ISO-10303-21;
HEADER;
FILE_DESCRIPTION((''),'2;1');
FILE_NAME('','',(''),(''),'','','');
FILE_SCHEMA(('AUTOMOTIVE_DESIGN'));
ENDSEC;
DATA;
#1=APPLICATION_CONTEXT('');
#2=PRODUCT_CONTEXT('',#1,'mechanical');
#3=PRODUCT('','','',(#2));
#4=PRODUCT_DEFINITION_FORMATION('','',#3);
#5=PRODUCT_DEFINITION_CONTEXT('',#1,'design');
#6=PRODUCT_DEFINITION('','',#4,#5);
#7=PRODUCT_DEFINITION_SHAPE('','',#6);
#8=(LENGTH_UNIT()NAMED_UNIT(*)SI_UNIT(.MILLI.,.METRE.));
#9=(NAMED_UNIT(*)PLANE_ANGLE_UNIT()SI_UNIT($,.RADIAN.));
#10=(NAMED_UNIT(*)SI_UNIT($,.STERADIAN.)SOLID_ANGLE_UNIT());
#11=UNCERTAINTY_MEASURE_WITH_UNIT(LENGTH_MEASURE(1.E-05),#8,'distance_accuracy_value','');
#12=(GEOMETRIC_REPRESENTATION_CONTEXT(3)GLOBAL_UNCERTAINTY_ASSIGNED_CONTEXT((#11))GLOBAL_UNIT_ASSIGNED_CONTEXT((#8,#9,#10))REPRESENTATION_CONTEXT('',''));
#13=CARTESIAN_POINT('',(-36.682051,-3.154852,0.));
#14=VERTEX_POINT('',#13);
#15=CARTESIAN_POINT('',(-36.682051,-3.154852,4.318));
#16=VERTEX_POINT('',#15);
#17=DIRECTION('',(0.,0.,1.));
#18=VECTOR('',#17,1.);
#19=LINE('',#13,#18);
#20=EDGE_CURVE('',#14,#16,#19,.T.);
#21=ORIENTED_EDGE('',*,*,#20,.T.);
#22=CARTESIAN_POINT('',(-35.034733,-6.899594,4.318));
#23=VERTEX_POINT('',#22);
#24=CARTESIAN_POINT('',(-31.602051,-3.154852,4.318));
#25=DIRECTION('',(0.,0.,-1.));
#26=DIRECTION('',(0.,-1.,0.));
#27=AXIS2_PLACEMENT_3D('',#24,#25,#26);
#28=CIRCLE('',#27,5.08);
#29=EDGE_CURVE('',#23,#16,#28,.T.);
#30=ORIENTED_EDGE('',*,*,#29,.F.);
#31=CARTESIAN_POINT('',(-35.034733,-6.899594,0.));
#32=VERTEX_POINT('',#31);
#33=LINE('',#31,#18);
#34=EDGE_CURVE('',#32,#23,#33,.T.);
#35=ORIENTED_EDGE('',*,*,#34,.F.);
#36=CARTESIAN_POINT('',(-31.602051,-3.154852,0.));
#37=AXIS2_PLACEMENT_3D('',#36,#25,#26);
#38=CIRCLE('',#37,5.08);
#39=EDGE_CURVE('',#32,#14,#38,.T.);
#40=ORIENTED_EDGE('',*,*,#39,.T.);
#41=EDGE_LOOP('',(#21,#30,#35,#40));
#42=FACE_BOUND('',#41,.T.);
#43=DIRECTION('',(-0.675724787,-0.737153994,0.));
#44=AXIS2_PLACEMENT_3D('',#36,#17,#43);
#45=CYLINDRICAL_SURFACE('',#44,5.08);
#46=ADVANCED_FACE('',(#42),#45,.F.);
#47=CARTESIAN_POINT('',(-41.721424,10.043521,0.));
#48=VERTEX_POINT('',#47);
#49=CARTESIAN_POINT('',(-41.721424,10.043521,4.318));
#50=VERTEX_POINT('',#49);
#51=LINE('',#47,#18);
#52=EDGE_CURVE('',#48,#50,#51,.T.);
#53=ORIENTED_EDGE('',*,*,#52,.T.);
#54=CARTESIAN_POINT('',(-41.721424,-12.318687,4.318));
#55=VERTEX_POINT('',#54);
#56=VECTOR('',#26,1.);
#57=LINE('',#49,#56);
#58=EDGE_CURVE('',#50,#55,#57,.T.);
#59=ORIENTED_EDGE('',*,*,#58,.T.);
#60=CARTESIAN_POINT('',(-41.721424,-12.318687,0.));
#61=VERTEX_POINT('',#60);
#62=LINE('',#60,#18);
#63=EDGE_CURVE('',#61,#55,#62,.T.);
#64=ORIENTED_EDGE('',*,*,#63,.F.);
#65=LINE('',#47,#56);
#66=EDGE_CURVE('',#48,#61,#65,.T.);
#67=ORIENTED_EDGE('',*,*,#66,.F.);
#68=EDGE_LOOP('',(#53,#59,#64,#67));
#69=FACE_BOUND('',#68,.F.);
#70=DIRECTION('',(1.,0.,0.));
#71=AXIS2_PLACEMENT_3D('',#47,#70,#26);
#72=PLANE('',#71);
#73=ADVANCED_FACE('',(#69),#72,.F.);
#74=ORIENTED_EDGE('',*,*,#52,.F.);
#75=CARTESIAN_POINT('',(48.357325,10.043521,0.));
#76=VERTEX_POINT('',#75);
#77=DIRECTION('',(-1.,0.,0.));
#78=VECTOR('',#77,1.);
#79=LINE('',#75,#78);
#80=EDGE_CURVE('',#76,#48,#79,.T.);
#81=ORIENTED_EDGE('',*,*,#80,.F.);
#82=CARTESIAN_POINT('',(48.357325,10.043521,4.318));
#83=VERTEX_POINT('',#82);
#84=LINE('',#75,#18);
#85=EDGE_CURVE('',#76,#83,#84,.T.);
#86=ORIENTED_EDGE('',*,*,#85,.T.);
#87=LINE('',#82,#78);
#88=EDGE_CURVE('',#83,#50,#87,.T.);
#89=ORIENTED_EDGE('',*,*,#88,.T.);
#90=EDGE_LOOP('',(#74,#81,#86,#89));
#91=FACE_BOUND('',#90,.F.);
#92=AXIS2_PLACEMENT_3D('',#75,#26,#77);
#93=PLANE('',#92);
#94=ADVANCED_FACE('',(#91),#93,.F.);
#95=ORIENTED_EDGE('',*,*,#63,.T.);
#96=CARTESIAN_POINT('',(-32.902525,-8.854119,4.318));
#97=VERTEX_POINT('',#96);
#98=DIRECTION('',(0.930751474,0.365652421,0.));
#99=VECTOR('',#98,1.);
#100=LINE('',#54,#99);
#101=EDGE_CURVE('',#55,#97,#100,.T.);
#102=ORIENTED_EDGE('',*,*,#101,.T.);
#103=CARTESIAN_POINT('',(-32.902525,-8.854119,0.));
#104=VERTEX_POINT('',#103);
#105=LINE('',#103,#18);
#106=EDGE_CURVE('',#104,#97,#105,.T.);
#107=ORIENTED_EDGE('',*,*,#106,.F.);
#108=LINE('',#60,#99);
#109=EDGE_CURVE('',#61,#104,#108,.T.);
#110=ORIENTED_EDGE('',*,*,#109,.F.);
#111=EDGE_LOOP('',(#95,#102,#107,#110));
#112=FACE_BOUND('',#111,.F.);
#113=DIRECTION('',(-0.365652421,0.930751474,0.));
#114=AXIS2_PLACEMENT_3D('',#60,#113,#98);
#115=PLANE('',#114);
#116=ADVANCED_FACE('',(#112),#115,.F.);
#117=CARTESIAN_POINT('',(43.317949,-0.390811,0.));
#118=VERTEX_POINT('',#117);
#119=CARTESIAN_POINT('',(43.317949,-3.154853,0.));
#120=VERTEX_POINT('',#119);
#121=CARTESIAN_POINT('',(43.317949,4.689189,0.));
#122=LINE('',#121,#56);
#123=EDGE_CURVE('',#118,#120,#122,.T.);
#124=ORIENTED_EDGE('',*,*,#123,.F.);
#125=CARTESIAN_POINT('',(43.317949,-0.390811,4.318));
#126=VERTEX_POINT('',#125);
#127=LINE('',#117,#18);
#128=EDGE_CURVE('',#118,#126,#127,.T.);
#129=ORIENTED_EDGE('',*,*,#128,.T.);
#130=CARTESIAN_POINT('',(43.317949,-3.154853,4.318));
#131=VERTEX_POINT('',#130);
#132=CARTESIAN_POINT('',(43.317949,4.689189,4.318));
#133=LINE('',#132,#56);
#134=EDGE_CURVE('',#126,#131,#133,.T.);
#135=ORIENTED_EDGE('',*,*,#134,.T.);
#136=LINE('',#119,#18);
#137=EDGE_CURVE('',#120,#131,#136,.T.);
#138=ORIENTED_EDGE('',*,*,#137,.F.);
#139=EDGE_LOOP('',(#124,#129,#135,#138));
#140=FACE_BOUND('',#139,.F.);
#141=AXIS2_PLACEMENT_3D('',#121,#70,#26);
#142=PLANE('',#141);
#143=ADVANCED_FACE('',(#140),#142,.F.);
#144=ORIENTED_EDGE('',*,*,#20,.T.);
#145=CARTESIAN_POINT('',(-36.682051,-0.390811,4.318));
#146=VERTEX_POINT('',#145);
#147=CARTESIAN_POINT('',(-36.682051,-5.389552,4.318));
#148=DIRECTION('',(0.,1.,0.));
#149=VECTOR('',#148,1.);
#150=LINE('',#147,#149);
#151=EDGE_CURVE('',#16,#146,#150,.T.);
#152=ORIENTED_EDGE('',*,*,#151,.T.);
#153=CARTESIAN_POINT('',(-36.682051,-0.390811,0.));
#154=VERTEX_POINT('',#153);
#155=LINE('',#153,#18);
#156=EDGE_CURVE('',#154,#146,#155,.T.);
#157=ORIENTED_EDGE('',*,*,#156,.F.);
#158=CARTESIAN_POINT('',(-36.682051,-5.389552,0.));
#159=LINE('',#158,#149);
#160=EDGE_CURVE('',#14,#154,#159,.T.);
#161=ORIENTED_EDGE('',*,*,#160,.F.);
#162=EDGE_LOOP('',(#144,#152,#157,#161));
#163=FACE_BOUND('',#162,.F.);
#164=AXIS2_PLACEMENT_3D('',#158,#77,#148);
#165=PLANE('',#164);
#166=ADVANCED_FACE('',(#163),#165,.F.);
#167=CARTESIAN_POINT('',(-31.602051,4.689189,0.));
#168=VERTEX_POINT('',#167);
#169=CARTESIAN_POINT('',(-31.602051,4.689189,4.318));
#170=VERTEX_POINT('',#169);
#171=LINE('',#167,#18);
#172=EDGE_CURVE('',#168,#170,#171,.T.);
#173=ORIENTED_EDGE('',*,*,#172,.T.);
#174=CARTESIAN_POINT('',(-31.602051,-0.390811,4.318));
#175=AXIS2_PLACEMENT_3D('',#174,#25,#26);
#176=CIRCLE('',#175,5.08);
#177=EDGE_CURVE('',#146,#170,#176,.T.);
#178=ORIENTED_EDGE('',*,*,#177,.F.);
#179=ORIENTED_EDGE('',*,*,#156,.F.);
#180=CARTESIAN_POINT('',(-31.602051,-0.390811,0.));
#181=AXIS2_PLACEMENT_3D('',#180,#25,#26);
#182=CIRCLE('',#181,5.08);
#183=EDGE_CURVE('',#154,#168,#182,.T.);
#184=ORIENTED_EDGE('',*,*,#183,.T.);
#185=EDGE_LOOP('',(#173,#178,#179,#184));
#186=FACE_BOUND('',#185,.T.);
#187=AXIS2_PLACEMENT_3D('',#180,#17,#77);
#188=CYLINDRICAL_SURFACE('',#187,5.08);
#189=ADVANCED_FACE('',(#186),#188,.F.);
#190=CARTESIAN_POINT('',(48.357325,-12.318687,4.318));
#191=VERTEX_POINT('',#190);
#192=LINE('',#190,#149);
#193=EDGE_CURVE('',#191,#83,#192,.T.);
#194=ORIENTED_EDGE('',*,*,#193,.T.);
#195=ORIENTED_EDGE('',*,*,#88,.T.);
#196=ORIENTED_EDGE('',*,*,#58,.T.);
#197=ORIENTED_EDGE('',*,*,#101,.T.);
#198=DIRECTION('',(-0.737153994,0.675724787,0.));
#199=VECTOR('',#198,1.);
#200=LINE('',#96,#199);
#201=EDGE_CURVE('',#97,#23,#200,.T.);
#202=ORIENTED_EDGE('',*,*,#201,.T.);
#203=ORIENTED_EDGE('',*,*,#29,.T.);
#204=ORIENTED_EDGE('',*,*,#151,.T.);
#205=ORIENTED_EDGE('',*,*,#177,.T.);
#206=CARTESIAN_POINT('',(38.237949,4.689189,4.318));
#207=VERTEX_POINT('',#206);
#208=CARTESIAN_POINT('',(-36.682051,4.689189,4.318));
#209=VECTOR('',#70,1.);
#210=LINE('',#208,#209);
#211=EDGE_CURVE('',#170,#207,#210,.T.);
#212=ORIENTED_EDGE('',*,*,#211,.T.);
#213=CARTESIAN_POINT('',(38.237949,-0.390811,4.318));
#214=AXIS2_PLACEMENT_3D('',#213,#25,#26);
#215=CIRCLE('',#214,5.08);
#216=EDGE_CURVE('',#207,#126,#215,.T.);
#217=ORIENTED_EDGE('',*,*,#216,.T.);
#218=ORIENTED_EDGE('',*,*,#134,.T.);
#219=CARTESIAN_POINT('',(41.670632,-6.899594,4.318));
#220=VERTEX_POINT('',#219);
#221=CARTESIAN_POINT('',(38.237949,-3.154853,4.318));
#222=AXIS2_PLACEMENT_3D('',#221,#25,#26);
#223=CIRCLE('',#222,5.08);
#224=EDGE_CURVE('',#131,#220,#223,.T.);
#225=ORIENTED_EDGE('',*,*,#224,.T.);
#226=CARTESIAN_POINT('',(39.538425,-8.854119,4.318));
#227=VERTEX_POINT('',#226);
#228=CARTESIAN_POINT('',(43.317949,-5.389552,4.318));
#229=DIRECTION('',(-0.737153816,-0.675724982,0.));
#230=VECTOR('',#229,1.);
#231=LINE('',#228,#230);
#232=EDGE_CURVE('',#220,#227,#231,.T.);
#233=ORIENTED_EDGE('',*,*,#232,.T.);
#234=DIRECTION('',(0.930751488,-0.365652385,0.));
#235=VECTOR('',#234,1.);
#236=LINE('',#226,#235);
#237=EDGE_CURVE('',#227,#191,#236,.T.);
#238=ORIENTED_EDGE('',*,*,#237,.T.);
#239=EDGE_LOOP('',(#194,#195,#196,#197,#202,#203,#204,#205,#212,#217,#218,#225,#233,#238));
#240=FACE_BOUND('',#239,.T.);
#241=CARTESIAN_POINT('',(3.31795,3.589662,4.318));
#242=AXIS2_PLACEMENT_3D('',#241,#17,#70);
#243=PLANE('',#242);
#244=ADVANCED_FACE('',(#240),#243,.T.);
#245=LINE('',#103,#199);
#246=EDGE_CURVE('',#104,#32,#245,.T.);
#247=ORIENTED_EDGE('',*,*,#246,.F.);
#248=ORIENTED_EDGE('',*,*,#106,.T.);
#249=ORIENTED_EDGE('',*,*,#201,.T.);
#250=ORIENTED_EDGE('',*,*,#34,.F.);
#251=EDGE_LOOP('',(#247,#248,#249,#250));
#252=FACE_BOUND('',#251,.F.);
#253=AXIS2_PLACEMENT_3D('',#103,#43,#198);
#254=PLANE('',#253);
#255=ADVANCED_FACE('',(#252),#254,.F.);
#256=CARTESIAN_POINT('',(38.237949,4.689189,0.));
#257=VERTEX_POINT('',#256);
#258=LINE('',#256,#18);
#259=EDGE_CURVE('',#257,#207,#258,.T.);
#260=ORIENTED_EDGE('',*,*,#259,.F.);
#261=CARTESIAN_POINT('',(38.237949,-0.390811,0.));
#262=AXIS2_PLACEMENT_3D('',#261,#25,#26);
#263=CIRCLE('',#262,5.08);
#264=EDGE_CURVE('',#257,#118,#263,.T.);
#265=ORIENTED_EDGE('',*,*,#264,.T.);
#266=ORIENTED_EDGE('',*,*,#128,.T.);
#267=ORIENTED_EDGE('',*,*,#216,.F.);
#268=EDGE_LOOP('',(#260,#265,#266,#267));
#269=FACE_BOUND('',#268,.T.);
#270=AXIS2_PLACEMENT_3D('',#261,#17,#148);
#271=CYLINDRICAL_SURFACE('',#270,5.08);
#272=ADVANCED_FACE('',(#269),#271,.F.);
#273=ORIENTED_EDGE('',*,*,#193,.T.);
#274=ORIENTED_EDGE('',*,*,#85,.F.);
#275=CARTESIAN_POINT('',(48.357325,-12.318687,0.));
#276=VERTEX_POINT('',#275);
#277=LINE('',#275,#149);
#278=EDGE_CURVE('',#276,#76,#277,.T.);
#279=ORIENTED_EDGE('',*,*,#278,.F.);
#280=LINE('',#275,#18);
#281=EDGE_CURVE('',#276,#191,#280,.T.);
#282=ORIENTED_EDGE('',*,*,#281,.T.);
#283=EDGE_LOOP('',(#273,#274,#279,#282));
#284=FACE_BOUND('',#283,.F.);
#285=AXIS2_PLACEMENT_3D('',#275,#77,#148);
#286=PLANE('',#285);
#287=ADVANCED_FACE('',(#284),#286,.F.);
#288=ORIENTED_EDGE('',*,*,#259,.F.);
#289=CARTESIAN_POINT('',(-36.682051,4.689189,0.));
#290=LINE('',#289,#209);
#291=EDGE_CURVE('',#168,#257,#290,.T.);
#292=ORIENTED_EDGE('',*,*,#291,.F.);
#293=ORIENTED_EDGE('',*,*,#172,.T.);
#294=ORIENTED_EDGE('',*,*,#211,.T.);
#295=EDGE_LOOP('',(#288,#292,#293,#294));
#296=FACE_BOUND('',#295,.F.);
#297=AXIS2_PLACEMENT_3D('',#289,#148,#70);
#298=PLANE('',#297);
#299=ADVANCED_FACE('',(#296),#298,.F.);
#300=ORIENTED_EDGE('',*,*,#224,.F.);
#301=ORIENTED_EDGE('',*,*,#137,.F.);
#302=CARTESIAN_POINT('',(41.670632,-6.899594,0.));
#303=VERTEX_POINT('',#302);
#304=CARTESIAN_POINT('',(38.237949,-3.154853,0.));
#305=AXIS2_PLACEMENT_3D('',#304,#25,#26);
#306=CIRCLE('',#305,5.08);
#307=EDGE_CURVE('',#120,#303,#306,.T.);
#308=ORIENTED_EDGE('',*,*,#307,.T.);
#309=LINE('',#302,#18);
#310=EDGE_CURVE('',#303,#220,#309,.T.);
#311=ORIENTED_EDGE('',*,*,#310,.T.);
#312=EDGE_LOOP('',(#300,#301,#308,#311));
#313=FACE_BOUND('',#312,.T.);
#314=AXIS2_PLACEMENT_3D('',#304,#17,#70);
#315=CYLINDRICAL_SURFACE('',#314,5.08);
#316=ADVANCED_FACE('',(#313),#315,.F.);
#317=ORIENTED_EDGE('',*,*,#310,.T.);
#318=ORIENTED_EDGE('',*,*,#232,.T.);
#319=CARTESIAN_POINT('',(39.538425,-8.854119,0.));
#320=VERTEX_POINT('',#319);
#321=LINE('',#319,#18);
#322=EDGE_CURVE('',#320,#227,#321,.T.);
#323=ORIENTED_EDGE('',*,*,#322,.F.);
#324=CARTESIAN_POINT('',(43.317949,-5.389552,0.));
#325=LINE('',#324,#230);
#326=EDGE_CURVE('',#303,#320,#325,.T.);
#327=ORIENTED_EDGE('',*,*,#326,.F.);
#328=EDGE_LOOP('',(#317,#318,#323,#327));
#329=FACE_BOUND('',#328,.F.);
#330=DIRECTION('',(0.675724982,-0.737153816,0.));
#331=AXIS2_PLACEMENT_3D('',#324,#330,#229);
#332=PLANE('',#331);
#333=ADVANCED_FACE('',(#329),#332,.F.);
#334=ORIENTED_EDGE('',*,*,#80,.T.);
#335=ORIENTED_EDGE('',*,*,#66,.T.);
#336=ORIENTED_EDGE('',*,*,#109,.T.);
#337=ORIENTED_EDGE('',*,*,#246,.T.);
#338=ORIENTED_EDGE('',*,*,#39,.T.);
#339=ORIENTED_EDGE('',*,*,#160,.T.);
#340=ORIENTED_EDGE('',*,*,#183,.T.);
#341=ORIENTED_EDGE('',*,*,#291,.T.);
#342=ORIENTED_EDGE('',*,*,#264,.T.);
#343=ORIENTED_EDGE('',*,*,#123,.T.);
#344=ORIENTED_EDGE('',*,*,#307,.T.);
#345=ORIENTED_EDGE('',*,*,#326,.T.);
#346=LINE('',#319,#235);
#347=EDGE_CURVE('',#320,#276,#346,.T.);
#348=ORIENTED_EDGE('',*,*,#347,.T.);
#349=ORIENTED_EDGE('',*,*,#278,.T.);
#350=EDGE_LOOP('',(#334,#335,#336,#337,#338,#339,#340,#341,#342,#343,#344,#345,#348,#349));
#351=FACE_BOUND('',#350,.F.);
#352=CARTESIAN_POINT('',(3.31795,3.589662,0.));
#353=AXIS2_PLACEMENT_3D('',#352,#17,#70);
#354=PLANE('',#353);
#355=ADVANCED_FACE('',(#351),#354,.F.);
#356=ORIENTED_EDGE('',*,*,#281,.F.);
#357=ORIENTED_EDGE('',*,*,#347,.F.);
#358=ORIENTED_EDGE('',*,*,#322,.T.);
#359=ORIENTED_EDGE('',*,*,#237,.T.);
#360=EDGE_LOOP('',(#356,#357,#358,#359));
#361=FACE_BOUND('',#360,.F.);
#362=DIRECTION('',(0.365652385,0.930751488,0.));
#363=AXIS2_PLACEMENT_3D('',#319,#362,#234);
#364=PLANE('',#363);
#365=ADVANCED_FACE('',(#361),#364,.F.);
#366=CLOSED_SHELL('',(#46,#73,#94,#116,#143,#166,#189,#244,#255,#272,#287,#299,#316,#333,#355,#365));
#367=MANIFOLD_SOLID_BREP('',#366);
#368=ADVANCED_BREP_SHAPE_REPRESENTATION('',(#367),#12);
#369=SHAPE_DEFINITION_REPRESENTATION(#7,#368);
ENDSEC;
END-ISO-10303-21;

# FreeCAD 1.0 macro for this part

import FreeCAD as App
import Part
import Sketcher
Q = App.Units.Quantity


def edges_at(feature, points):
    """Names of the edges that pass closest to the given points."""
    edges = feature.Shape.Edges
    near = lambda p: min(range(len(edges)), key=lambda i: edges[i].distToShape(Part.Vertex(*p))[0])
    return sorted({f"Edge{near(p) + 1}" for p in points})

doc = App.newDocument("Part")
body = doc.addObject("PartDesign::Body", "Body")

sketch1 = doc.addObject("Sketcher::SketchObject", "Sketch")
body.addObject(sketch1)
sketch1.AttachmentSupport = (doc.XY_Plane, [""])
sketch1.MapMode = "FlatFace"
sketch1.addGeometry(Part.LineSegment(App.Vector(-32.902525, -8.854119, 0), App.Vector(-36.682051, -5.389552, 0)), False)
sketch1.addGeometry(Part.LineSegment(App.Vector(-36.682051, -5.389552, 0), App.Vector(-36.682051, 4.689189, 0)), False)
sketch1.addGeometry(Part.LineSegment(App.Vector(-36.682051, 4.689189, 0), App.Vector(43.317949, 4.689189, 0)), False)
sketch1.addGeometry(Part.LineSegment(App.Vector(43.317949, 4.689189, 0), App.Vector(43.317949, -5.389552, 0)), False)
sketch1.addGeometry(Part.LineSegment(App.Vector(43.317949, -5.389552, 0), App.Vector(39.538425, -8.854119, 0)), False)
sketch1.addGeometry(Part.LineSegment(App.Vector(39.538425, -8.854119, 0), App.Vector(48.357325, -12.318687, 0)), False)
sketch1.addGeometry(Part.LineSegment(App.Vector(48.357325, -12.318687, 0), App.Vector(48.357325, 10.043521, 0)), False)
sketch1.addGeometry(Part.LineSegment(App.Vector(48.357325, 10.043521, 0), App.Vector(-41.721424, 10.043521, 0)), False)
sketch1.addGeometry(Part.LineSegment(App.Vector(-41.721424, 10.043521, 0), App.Vector(-41.721424, -12.318687, 0)), False)
sketch1.addGeometry(Part.LineSegment(App.Vector(-41.721424, -12.318687, 0), App.Vector(-32.902525, -8.854119, 0)), False)
sketch1.addConstraint(Sketcher.Constraint("Coincident", 0, 2, 1, 1))
sketch1.addConstraint(Sketcher.Constraint("Coincident", 1, 2, 2, 1))
sketch1.addConstraint(Sketcher.Constraint("Coincident", 2, 2, 3, 1))
sketch1.addConstraint(Sketcher.Constraint("Coincident", 3, 2, 4, 1))
sketch1.addConstraint(Sketcher.Constraint("Coincident", 4, 2, 5, 1))
sketch1.addConstraint(Sketcher.Constraint("Coincident", 5, 2, 6, 1))
sketch1.addConstraint(Sketcher.Constraint("Coincident", 6, 2, 7, 1))
sketch1.addConstraint(Sketcher.Constraint("Coincident", 7, 2, 8, 1))
sketch1.addConstraint(Sketcher.Constraint("Coincident", 8, 2, 9, 1))
sketch1.addConstraint(Sketcher.Constraint("Coincident", 9, 2, 0, 1))
sketch1.addConstraint(Sketcher.Constraint("Vertical", 1))
sketch1.addConstraint(Sketcher.Constraint("Horizontal", 2))
sketch1.addConstraint(Sketcher.Constraint("Vertical", 3))
sketch1.addConstraint(Sketcher.Constraint("Vertical", 6))
sketch1.addConstraint(Sketcher.Constraint("Horizontal", 7))
sketch1.addConstraint(Sketcher.Constraint("Vertical", 8))
sketch1.addConstraint(Sketcher.Constraint("Horizontal", 0, 2, 3, 2))
sketch1.addConstraint(Sketcher.Constraint("Horizontal", 5, 2, 8, 2))
sketch1.addConstraint(Sketcher.Constraint("Horizontal", 4, 2, 9, 2))
sketch1.addConstraint(Sketcher.Constraint("Equal", 0, 4))
sketch1.addConstraint(Sketcher.Constraint("Equal", 5, 9))
sketch1.addConstraint(Sketcher.Constraint("DistanceX", 2, 1, 2, 2, 80.0))
sketch1.addConstraint(Sketcher.Constraint("DistanceX", 4, 2, 3, 2, Q("0.1488002 in")))
sketch1.addConstraint(Sketcher.Constraint("DistanceX", 7, 2, 7, 1, 90.078749))
sketch1.addConstraint(Sketcher.Constraint("DistanceY", 1, 1, 1, 2, 10.078741))
sketch1.addConstraint(Sketcher.Constraint("DistanceY", 6, 1, 6, 2, 22.362208))
sketch1.addConstraint(Sketcher.Constraint("Distance", 5, 9.475032))
sketch1.addConstraint(Sketcher.Constraint("DistanceX", 0, 2, -1, 1, 36.682051))
sketch1.addConstraint(Sketcher.Constraint("DistanceY", -1, 1, 1, 2, 4.689189))
sketch1.addConstraint(Sketcher.Constraint("DistanceY", 4, 2, -1, 1, 8.854119))
pad1 = doc.addObject("PartDesign::Pad", "Pad")
body.addObject(pad1)
pad1.Profile = sketch1
pad1.Length = Q("0.17 in")
doc.recompute()

fillet = doc.addObject("PartDesign::Fillet", "Fillet")
body.addObject(fillet)
fillet.Base = (pad1, edges_at(pad1, [
    (-36.682, 4.689, 2.159),
    (43.318, 4.689, 2.159),
    (-36.682, -5.39, 2.159),
    (43.318, -5.39, 2.159),
]))
fillet.Radius = Q("0.2 in")

doc.recompute()
